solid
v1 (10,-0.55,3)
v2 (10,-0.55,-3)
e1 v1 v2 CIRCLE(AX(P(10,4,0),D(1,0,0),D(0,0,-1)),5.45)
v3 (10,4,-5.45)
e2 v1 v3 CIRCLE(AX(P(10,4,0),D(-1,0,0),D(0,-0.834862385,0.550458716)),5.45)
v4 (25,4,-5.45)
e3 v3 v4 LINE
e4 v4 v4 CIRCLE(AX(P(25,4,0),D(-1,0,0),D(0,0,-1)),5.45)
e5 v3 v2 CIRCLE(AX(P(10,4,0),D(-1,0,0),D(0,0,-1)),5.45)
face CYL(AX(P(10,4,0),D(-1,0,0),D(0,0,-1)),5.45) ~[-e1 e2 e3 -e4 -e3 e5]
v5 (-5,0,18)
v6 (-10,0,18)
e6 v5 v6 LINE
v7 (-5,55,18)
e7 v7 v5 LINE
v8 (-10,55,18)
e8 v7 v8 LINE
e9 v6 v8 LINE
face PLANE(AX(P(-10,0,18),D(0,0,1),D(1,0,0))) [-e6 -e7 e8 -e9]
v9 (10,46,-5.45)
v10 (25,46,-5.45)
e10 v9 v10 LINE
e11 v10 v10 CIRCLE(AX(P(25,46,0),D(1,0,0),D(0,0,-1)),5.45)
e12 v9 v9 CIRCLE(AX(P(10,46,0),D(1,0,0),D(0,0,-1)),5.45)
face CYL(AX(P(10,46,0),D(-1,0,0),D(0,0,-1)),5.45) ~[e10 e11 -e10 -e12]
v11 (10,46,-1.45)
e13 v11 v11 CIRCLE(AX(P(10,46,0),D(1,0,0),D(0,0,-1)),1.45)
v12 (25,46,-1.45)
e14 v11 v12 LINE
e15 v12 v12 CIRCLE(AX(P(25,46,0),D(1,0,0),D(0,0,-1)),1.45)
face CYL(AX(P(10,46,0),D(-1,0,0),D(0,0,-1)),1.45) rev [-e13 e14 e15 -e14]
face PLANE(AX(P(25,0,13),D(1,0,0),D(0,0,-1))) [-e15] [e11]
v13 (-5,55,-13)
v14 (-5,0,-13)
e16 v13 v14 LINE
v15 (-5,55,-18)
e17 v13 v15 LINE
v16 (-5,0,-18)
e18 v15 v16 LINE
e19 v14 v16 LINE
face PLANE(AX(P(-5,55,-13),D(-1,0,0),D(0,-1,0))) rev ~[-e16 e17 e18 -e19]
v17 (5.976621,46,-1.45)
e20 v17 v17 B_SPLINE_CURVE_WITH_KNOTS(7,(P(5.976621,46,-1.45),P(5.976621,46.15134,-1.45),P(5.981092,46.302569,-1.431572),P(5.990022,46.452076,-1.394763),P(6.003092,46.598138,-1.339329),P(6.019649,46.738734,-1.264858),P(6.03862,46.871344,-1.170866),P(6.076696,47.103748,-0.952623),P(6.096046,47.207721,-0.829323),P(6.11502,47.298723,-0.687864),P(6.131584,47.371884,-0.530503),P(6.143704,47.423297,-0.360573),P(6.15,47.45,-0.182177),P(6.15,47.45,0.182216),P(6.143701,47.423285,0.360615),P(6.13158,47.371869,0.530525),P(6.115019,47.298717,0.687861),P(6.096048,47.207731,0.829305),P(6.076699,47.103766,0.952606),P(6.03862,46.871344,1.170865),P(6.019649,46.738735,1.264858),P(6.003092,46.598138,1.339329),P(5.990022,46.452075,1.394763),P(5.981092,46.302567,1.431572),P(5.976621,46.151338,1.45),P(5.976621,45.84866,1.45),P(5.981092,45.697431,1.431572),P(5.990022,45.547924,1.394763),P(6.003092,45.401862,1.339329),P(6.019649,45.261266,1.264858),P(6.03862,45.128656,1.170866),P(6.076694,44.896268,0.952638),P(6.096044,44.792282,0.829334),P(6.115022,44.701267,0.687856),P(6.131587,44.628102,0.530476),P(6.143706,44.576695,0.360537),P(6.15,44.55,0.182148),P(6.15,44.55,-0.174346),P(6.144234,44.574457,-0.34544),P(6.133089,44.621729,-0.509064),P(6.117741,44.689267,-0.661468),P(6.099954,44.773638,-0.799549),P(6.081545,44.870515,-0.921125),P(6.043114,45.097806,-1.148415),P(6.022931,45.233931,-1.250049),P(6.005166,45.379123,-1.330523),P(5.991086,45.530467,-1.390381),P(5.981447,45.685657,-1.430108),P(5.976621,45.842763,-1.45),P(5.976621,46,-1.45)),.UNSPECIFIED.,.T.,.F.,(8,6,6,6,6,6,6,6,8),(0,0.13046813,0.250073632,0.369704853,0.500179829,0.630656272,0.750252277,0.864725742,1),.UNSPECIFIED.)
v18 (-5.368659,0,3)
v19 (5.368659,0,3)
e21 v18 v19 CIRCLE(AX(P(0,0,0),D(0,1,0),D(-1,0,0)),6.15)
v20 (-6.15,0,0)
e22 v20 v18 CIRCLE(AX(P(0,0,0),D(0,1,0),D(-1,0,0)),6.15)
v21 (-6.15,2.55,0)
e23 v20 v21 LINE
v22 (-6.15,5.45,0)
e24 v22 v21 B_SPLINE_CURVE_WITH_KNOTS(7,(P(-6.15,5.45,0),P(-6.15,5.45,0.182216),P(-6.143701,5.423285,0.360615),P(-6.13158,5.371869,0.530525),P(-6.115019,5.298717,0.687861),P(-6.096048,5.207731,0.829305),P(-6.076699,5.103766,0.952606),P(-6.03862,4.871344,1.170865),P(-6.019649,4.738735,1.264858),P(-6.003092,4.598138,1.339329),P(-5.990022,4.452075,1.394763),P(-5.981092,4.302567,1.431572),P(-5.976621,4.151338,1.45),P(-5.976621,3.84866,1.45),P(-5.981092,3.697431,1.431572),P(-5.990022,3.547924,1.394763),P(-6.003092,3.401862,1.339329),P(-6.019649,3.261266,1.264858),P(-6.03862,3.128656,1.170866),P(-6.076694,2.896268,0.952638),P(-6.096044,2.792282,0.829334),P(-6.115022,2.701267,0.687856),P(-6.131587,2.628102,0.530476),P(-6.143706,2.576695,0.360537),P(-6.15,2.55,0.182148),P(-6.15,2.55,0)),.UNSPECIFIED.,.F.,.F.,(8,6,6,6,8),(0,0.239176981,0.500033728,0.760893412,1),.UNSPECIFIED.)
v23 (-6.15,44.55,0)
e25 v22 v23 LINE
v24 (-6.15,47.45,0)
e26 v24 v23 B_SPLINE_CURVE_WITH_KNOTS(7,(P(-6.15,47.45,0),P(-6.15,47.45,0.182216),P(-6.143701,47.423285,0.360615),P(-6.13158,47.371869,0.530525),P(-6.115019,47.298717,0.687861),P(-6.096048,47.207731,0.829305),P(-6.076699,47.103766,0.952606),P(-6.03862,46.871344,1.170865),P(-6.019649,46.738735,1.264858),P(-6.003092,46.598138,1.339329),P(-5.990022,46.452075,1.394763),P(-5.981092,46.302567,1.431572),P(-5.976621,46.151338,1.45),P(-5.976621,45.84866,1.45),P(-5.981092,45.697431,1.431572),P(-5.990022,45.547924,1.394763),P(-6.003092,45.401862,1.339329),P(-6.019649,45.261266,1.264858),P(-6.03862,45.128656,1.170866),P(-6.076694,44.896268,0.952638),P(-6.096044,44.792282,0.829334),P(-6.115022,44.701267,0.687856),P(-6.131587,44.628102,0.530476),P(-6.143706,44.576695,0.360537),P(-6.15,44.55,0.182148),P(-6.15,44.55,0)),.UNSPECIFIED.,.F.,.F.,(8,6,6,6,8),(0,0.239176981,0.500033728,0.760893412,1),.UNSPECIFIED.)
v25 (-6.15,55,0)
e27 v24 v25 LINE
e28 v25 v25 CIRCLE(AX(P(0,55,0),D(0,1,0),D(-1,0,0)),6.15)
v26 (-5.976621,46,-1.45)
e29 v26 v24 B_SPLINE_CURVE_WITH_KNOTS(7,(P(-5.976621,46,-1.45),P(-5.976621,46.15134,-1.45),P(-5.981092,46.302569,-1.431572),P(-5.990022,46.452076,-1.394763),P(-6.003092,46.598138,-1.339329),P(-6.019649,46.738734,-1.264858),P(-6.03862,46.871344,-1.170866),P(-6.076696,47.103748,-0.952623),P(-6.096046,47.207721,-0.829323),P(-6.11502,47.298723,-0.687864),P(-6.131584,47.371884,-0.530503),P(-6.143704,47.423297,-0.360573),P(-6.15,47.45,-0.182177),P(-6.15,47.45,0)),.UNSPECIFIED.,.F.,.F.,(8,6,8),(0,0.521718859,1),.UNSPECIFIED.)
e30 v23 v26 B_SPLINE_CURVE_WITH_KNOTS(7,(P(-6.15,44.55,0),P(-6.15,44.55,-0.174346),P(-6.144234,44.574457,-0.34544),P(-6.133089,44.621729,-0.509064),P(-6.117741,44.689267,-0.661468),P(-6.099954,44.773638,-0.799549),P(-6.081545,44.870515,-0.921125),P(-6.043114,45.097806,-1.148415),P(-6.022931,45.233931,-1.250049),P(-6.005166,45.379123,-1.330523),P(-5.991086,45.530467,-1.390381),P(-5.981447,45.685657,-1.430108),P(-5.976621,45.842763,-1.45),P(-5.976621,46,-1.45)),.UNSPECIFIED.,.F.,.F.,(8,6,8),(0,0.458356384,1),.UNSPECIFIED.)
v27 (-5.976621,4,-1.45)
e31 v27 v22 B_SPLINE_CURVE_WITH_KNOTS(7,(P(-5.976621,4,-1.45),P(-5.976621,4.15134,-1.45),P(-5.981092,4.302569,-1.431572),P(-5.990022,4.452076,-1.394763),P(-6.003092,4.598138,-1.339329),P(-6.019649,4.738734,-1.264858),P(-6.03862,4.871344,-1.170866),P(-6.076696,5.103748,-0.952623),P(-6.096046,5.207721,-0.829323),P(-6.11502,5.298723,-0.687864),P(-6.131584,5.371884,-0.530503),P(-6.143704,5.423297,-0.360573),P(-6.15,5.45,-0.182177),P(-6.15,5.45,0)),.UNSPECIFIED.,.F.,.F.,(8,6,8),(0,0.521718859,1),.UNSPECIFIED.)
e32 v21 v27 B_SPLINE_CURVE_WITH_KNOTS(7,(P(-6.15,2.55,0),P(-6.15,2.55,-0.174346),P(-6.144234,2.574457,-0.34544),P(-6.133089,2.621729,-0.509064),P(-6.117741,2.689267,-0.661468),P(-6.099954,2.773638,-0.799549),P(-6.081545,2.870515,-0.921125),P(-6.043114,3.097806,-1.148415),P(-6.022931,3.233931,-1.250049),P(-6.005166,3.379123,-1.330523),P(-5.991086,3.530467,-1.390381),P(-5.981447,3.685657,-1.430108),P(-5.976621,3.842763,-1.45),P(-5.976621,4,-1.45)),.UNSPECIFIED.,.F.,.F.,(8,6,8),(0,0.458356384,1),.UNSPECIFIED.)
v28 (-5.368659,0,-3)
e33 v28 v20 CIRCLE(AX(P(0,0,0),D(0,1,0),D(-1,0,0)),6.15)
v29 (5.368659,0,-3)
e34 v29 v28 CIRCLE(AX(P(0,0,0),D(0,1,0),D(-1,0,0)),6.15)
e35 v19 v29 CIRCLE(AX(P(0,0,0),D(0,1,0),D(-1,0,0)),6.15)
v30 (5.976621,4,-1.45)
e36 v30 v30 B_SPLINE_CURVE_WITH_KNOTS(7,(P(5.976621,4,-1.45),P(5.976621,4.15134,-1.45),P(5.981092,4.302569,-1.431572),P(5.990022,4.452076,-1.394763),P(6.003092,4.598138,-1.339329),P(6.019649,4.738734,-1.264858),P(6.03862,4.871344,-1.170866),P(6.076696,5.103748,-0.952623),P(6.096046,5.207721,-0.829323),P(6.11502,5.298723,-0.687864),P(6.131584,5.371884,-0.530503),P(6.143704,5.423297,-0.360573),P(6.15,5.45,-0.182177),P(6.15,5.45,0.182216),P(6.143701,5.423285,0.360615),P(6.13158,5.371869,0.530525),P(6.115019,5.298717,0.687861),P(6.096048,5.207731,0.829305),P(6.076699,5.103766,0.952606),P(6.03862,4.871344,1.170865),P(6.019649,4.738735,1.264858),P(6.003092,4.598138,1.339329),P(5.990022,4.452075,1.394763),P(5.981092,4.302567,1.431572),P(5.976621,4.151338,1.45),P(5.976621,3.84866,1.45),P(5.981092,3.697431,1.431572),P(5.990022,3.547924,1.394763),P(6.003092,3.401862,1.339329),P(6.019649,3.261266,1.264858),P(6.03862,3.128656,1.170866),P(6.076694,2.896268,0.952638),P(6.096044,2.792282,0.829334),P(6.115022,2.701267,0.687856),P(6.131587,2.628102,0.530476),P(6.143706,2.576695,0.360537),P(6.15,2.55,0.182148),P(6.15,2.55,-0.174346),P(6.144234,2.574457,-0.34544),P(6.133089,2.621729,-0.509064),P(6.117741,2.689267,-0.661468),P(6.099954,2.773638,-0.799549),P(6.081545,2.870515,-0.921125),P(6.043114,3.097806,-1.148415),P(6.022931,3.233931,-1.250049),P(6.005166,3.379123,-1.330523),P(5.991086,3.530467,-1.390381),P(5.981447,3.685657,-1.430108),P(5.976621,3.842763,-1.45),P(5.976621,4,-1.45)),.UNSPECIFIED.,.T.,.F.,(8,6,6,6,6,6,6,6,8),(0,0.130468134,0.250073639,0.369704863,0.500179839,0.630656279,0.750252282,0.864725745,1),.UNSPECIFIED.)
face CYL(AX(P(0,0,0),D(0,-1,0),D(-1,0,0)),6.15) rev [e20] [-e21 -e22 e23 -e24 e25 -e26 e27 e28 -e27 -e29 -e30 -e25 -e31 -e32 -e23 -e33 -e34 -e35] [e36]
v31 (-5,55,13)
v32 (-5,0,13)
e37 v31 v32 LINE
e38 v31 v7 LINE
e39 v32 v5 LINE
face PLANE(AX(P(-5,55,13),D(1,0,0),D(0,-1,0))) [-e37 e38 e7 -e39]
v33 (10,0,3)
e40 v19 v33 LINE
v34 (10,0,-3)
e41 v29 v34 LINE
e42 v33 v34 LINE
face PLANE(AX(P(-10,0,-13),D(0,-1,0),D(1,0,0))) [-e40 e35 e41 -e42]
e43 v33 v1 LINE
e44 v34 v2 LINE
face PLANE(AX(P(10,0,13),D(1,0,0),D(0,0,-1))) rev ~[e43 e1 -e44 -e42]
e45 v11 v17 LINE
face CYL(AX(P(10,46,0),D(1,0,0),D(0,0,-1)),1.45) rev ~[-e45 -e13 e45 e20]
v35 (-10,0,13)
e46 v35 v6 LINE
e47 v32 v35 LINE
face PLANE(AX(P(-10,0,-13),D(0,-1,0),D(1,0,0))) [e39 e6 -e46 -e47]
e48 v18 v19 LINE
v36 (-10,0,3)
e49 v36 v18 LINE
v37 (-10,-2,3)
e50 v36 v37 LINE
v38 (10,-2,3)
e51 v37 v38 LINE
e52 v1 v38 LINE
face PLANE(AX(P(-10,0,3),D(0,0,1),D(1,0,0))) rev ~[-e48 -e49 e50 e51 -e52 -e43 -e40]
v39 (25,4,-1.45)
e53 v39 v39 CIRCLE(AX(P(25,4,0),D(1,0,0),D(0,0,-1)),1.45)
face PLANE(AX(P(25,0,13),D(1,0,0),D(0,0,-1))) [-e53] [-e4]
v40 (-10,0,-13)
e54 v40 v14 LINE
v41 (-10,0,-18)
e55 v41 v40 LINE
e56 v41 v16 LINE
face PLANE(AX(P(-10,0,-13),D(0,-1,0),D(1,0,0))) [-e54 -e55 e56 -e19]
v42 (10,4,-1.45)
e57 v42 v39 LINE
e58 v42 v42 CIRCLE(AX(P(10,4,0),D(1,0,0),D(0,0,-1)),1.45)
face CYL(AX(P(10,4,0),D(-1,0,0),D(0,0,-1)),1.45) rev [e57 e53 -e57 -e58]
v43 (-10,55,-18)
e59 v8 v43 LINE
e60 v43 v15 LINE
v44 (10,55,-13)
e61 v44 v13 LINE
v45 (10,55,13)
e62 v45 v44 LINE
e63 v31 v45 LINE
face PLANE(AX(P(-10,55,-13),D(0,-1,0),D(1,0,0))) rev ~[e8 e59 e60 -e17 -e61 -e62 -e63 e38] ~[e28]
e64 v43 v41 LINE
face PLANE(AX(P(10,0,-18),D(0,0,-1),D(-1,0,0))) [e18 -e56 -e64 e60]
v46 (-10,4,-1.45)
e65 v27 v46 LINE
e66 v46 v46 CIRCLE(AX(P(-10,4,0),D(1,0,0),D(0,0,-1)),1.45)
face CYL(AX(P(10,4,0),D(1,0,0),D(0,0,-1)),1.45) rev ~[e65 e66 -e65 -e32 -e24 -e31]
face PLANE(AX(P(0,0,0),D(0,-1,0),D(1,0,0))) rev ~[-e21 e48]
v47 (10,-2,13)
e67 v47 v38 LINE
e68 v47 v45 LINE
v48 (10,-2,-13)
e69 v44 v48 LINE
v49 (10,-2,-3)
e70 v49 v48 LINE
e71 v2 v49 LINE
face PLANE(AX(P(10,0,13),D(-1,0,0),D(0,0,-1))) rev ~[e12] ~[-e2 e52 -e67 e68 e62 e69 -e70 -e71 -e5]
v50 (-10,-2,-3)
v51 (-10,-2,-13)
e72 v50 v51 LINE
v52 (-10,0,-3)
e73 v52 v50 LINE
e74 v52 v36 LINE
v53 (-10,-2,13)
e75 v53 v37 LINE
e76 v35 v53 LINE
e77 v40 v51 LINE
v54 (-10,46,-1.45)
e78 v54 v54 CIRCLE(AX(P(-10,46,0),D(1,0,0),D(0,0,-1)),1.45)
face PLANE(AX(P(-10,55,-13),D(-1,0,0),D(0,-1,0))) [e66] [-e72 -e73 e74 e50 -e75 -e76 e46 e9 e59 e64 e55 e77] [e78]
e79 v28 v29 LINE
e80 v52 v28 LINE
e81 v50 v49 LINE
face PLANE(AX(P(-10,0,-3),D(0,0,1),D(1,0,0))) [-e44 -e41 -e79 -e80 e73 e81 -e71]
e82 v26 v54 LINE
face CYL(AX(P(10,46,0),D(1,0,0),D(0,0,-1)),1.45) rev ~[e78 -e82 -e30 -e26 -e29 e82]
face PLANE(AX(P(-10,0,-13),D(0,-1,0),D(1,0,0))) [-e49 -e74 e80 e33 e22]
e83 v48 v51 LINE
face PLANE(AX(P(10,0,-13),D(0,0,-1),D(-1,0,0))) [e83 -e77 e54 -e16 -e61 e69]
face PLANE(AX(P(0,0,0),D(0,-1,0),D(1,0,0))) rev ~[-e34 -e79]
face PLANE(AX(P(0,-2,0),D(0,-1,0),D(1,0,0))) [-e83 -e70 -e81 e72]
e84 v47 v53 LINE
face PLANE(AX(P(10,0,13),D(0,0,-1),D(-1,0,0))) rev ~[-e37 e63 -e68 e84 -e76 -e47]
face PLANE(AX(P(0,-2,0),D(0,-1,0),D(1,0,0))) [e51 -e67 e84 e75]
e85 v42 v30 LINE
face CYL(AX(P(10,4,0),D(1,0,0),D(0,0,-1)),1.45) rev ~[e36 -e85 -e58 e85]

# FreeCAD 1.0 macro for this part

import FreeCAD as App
import Part
import Sketcher

V = App.Vector


def add_polygon(sketch, points):
    """Adds a closed chain of lines whose ends are joined by coincident constraints."""
    first, n = sketch.GeometryCount, len(points)
    for a, b in zip(points, points[1:] + points[:1]):
        sketch.addGeometry(Part.LineSegment(App.Vector(*a, 0), App.Vector(*b, 0)), False)
    for i in range(n):
        sketch.addConstraint(Sketcher.Constraint("Coincident", first + i, 2, first + (i + 1) % n, 1))

doc = App.newDocument("Part")
params = doc.addObject("Spreadsheet::Sheet", "Params")
for row, (alias, value) in enumerate([
    ("sketch1_diameter", "12.3 mm"),
    ("pad1_length", "55 mm"),
    ("sketch2_diameter", "2.9 mm"),
    ("pocket1_length", "55 mm"),
    ("sketch3_diameter", "10.9 mm"),
    ("sketch3_diameter2", "2.9 mm"),
    ("pad2_length", "15 mm"),
    ("sketch4_width", "5 mm"),
    ("sketch4_height", "55 mm"),
    ("pad3_length", "5 mm"),
    ("sketch5_width", "5 mm"),
    ("sketch5_height", "55 mm"),
    ("pad4_length", "5 mm"),
    ("sketch6_height", "10 mm"),
    ("pad5_length", "2 mm"),
], start=1):
    params.set(f"A{row}", alias)
    params.set(f"B{row}", "=" + value)
    params.setAlias(f"B{row}", alias)

body = doc.addObject("PartDesign::Body", "Body")

sketch1 = body.newObject("Sketcher::SketchObject", "Sketch")
sketch1.AttachmentSupport = (doc.getObject("XZ_Plane"), [""])
sketch1.MapMode = "FlatFace"
add_polygon(sketch1, [(-10, -13), (-10, 13), (10, 13), (10, -13)])
sketch1.addGeometry(Part.Circle(V(0, 0, 0), V(0, 0, 1), 6), False)
sketch1.addConstraint([
    Sketcher.Constraint("Vertical", 0),
    Sketcher.Constraint("Horizontal", 1),
    Sketcher.Constraint("Vertical", 2),
    Sketcher.Constraint("Horizontal", 3),
    Sketcher.Constraint("Coincident", 4, 3, -1, 1),
    Sketcher.Constraint("Symmetric", 0, 2, 2, 2, -1, 1),
    Sketcher.Constraint("Diameter", 4, 12.3),
    Sketcher.Constraint("DistanceX", 0, 2, -1, 1, 10.0),
    Sketcher.Constraint("DistanceY", -1, 1, 0, 2, 13.0),
])
sketch1.setExpression("Constraints[10]", "Params.sketch1_diameter")
pad1 = body.newObject("PartDesign::Pad", "Pad")
pad1.Profile = sketch1
pad1.setExpression("Length", "Params.pad1_length")
pad1.Reversed = True

sketch2 = body.newObject("Sketcher::SketchObject", "Sketch001")
sketch2.AttachmentSupport = (doc.getObject("YZ_Plane"), [""])
sketch2.MapMode = "FlatFace"
sketch2.AttachmentOffset = App.Placement(V(0, 0, 10), App.Rotation())
sketch2.addGeometry([
    Part.Circle(V(4, 0, 0), V(0, 0, 1), 1.4),
    Part.Circle(V(46, 0, 0), V(0, 0, 1), 1.4),
], False)
sketch2.addConstraint([
    Sketcher.Constraint("Equal", 0, 1),
    Sketcher.Constraint("PointOnObject", 0, 3, -1),
    Sketcher.Constraint("PointOnObject", 1, 3, -1),
    Sketcher.Constraint("Diameter", 0, 2.9),
    Sketcher.Constraint("DistanceX", -1, 1, 0, 3, 4.0),
    Sketcher.Constraint("DistanceX", -1, 1, 1, 3, 46.0),
])
sketch2.setExpression("Constraints[3]", "Params.sketch2_diameter")
pocket1 = body.newObject("PartDesign::Pocket", "Pocket")
pocket1.Profile = sketch2
pocket1.setExpression("Length", "Params.pocket1_length")

sketch3 = body.newObject("Sketcher::SketchObject", "Sketch002")
sketch3.AttachmentSupport = (doc.getObject("YZ_Plane"), [""])
sketch3.MapMode = "FlatFace"
sketch3.AttachmentOffset = App.Placement(V(0, 0, 10), App.Rotation())
sketch3.addGeometry([
    Part.Circle(V(4, 0, 0), V(0, 0, 1), 5.5),
    Part.Circle(V(4, 0, 0), V(0, 0, 1), 1.4),
    Part.Circle(V(46, 0, 0), V(0, 0, 1), 5.5),
    Part.Circle(V(46, 0, 0), V(0, 0, 1), 1.4),
], False)
sketch3.addConstraint([
    Sketcher.Constraint("Coincident", 1, 3, 0, 3),
    Sketcher.Constraint("Coincident", 3, 3, 2, 3),
    Sketcher.Constraint("Equal", 0, 2),
    Sketcher.Constraint("Equal", 1, 3),
    Sketcher.Constraint("PointOnObject", 0, 3, -1),
    Sketcher.Constraint("PointOnObject", 2, 3, -1),
    Sketcher.Constraint("DistanceX", -1, 1, 0, 3, 4.0),
    Sketcher.Constraint("Diameter", 0, 10.9),
    Sketcher.Constraint("Diameter", 1, 2.9),
    Sketcher.Constraint("DistanceX", -1, 1, 2, 3, 46.0),
])
sketch3.setExpression("Constraints[7]", "Params.sketch3_diameter")
sketch3.setExpression("Constraints[8]", "Params.sketch3_diameter2")
pad2 = body.newObject("PartDesign::Pad", "Pad001")
pad2.Profile = sketch3
pad2.setExpression("Length", "Params.pad2_length")

sketch4 = body.newObject("Sketcher::SketchObject", "Sketch003")
sketch4.AttachmentSupport = (doc.getObject("XY_Plane"), [""])
sketch4.MapMode = "FlatFace"
sketch4.AttachmentOffset = App.Placement(V(0, 0, 13), App.Rotation())
add_polygon(sketch4, [(-5, 0), (-5, 55), (-10, 55), (-10, 0)])
sketch4.addConstraint([
    Sketcher.Constraint("Vertical", 0),
    Sketcher.Constraint("Horizontal", 1),
    Sketcher.Constraint("Vertical", 2),
    Sketcher.Constraint("Horizontal", 3),
    Sketcher.Constraint("PointOnObject", 2, 2, -1),
    Sketcher.Constraint("DistanceX", 1, 2, 1, 1, 5.0),
    Sketcher.Constraint("DistanceX", 0, 2, -1, 1, 5.0),
    Sketcher.Constraint("DistanceY", 0, 1, 0, 2, 55.0),
])
sketch4.setExpression("Constraints[9]", "Params.sketch4_width")
sketch4.setExpression("Constraints[11]", "Params.sketch4_height")
pad3 = body.newObject("PartDesign::Pad", "Pad002")
pad3.Profile = sketch4
pad3.setExpression("Length", "Params.pad3_length")

sketch5 = body.newObject("Sketcher::SketchObject", "Sketch004")
sketch5.AttachmentSupport = (doc.getObject("XY_Plane"), [""])
sketch5.MapMode = "FlatFace"
sketch5.AttachmentOffset = App.Placement(V(0, 0, -13), App.Rotation())
add_polygon(sketch5, [(-10, 0), (-10, 55), (-5, 55), (-5, 0)])
sketch5.addConstraint([
    Sketcher.Constraint("Vertical", 0),
    Sketcher.Constraint("Horizontal", 1),
    Sketcher.Constraint("Vertical", 2),
    Sketcher.Constraint("Horizontal", 3),
    Sketcher.Constraint("PointOnObject", 2, 2, -1),
    Sketcher.Constraint("DistanceX", 1, 1, 1, 2, 5.0),
    Sketcher.Constraint("DistanceX", 1, 2, -1, 1, 5.0),
    Sketcher.Constraint("DistanceY", 0, 1, 0, 2, 55.0),
])
sketch5.setExpression("Constraints[9]", "Params.sketch5_width")
sketch5.setExpression("Constraints[11]", "Params.sketch5_height")
pad4 = body.newObject("PartDesign::Pad", "Pad003")
pad4.Profile = sketch5
pad4.setExpression("Length", "Params.pad4_length")
pad4.Reversed = True

sketch6 = body.newObject("Sketcher::SketchObject", "Sketch005")
sketch6.AttachmentSupport = (doc.getObject("XZ_Plane"), [""])
sketch6.MapMode = "FlatFace"
add_polygon(sketch6, [(10, 3), (10, 13), (-10, 13), (-10, 3)])
add_polygon(sketch6, [(10, -13), (10, -3), (-10, -3), (-10, -13)])
sketch6.addConstraint([
    Sketcher.Constraint("Vertical", 0),
    Sketcher.Constraint("Horizontal", 1),
    Sketcher.Constraint("Vertical", 2),
    Sketcher.Constraint("Horizontal", 3),
    Sketcher.Constraint("Vertical", 4),
    Sketcher.Constraint("Horizontal", 5),
    Sketcher.Constraint("Vertical", 6),
    Sketcher.Constraint("Horizontal", 7),
    Sketcher.Constraint("Symmetric", 2, 2, 4, 2, -1, 1),
    Sketcher.Constraint("Symmetric", 0, 2, 6, 2, -1, 1),
    Sketcher.Constraint("Vertical", 3, 2, 4, 2),
    Sketcher.Constraint("DistanceY", 0, 1, 0, 2, 10.0),
    Sketcher.Constraint("DistanceX", -1, 1, 0, 2, 10.0),
    Sketcher.Constraint("DistanceY", -1, 1, 0, 2, 13.0),
])
sketch6.setExpression("Constraints[19]", "Params.sketch6_height")
pad5 = body.newObject("PartDesign::Pad", "Pad004")
pad5.Profile = sketch6
pad5.setExpression("Length", "Params.pad5_length")

doc.recompute()
